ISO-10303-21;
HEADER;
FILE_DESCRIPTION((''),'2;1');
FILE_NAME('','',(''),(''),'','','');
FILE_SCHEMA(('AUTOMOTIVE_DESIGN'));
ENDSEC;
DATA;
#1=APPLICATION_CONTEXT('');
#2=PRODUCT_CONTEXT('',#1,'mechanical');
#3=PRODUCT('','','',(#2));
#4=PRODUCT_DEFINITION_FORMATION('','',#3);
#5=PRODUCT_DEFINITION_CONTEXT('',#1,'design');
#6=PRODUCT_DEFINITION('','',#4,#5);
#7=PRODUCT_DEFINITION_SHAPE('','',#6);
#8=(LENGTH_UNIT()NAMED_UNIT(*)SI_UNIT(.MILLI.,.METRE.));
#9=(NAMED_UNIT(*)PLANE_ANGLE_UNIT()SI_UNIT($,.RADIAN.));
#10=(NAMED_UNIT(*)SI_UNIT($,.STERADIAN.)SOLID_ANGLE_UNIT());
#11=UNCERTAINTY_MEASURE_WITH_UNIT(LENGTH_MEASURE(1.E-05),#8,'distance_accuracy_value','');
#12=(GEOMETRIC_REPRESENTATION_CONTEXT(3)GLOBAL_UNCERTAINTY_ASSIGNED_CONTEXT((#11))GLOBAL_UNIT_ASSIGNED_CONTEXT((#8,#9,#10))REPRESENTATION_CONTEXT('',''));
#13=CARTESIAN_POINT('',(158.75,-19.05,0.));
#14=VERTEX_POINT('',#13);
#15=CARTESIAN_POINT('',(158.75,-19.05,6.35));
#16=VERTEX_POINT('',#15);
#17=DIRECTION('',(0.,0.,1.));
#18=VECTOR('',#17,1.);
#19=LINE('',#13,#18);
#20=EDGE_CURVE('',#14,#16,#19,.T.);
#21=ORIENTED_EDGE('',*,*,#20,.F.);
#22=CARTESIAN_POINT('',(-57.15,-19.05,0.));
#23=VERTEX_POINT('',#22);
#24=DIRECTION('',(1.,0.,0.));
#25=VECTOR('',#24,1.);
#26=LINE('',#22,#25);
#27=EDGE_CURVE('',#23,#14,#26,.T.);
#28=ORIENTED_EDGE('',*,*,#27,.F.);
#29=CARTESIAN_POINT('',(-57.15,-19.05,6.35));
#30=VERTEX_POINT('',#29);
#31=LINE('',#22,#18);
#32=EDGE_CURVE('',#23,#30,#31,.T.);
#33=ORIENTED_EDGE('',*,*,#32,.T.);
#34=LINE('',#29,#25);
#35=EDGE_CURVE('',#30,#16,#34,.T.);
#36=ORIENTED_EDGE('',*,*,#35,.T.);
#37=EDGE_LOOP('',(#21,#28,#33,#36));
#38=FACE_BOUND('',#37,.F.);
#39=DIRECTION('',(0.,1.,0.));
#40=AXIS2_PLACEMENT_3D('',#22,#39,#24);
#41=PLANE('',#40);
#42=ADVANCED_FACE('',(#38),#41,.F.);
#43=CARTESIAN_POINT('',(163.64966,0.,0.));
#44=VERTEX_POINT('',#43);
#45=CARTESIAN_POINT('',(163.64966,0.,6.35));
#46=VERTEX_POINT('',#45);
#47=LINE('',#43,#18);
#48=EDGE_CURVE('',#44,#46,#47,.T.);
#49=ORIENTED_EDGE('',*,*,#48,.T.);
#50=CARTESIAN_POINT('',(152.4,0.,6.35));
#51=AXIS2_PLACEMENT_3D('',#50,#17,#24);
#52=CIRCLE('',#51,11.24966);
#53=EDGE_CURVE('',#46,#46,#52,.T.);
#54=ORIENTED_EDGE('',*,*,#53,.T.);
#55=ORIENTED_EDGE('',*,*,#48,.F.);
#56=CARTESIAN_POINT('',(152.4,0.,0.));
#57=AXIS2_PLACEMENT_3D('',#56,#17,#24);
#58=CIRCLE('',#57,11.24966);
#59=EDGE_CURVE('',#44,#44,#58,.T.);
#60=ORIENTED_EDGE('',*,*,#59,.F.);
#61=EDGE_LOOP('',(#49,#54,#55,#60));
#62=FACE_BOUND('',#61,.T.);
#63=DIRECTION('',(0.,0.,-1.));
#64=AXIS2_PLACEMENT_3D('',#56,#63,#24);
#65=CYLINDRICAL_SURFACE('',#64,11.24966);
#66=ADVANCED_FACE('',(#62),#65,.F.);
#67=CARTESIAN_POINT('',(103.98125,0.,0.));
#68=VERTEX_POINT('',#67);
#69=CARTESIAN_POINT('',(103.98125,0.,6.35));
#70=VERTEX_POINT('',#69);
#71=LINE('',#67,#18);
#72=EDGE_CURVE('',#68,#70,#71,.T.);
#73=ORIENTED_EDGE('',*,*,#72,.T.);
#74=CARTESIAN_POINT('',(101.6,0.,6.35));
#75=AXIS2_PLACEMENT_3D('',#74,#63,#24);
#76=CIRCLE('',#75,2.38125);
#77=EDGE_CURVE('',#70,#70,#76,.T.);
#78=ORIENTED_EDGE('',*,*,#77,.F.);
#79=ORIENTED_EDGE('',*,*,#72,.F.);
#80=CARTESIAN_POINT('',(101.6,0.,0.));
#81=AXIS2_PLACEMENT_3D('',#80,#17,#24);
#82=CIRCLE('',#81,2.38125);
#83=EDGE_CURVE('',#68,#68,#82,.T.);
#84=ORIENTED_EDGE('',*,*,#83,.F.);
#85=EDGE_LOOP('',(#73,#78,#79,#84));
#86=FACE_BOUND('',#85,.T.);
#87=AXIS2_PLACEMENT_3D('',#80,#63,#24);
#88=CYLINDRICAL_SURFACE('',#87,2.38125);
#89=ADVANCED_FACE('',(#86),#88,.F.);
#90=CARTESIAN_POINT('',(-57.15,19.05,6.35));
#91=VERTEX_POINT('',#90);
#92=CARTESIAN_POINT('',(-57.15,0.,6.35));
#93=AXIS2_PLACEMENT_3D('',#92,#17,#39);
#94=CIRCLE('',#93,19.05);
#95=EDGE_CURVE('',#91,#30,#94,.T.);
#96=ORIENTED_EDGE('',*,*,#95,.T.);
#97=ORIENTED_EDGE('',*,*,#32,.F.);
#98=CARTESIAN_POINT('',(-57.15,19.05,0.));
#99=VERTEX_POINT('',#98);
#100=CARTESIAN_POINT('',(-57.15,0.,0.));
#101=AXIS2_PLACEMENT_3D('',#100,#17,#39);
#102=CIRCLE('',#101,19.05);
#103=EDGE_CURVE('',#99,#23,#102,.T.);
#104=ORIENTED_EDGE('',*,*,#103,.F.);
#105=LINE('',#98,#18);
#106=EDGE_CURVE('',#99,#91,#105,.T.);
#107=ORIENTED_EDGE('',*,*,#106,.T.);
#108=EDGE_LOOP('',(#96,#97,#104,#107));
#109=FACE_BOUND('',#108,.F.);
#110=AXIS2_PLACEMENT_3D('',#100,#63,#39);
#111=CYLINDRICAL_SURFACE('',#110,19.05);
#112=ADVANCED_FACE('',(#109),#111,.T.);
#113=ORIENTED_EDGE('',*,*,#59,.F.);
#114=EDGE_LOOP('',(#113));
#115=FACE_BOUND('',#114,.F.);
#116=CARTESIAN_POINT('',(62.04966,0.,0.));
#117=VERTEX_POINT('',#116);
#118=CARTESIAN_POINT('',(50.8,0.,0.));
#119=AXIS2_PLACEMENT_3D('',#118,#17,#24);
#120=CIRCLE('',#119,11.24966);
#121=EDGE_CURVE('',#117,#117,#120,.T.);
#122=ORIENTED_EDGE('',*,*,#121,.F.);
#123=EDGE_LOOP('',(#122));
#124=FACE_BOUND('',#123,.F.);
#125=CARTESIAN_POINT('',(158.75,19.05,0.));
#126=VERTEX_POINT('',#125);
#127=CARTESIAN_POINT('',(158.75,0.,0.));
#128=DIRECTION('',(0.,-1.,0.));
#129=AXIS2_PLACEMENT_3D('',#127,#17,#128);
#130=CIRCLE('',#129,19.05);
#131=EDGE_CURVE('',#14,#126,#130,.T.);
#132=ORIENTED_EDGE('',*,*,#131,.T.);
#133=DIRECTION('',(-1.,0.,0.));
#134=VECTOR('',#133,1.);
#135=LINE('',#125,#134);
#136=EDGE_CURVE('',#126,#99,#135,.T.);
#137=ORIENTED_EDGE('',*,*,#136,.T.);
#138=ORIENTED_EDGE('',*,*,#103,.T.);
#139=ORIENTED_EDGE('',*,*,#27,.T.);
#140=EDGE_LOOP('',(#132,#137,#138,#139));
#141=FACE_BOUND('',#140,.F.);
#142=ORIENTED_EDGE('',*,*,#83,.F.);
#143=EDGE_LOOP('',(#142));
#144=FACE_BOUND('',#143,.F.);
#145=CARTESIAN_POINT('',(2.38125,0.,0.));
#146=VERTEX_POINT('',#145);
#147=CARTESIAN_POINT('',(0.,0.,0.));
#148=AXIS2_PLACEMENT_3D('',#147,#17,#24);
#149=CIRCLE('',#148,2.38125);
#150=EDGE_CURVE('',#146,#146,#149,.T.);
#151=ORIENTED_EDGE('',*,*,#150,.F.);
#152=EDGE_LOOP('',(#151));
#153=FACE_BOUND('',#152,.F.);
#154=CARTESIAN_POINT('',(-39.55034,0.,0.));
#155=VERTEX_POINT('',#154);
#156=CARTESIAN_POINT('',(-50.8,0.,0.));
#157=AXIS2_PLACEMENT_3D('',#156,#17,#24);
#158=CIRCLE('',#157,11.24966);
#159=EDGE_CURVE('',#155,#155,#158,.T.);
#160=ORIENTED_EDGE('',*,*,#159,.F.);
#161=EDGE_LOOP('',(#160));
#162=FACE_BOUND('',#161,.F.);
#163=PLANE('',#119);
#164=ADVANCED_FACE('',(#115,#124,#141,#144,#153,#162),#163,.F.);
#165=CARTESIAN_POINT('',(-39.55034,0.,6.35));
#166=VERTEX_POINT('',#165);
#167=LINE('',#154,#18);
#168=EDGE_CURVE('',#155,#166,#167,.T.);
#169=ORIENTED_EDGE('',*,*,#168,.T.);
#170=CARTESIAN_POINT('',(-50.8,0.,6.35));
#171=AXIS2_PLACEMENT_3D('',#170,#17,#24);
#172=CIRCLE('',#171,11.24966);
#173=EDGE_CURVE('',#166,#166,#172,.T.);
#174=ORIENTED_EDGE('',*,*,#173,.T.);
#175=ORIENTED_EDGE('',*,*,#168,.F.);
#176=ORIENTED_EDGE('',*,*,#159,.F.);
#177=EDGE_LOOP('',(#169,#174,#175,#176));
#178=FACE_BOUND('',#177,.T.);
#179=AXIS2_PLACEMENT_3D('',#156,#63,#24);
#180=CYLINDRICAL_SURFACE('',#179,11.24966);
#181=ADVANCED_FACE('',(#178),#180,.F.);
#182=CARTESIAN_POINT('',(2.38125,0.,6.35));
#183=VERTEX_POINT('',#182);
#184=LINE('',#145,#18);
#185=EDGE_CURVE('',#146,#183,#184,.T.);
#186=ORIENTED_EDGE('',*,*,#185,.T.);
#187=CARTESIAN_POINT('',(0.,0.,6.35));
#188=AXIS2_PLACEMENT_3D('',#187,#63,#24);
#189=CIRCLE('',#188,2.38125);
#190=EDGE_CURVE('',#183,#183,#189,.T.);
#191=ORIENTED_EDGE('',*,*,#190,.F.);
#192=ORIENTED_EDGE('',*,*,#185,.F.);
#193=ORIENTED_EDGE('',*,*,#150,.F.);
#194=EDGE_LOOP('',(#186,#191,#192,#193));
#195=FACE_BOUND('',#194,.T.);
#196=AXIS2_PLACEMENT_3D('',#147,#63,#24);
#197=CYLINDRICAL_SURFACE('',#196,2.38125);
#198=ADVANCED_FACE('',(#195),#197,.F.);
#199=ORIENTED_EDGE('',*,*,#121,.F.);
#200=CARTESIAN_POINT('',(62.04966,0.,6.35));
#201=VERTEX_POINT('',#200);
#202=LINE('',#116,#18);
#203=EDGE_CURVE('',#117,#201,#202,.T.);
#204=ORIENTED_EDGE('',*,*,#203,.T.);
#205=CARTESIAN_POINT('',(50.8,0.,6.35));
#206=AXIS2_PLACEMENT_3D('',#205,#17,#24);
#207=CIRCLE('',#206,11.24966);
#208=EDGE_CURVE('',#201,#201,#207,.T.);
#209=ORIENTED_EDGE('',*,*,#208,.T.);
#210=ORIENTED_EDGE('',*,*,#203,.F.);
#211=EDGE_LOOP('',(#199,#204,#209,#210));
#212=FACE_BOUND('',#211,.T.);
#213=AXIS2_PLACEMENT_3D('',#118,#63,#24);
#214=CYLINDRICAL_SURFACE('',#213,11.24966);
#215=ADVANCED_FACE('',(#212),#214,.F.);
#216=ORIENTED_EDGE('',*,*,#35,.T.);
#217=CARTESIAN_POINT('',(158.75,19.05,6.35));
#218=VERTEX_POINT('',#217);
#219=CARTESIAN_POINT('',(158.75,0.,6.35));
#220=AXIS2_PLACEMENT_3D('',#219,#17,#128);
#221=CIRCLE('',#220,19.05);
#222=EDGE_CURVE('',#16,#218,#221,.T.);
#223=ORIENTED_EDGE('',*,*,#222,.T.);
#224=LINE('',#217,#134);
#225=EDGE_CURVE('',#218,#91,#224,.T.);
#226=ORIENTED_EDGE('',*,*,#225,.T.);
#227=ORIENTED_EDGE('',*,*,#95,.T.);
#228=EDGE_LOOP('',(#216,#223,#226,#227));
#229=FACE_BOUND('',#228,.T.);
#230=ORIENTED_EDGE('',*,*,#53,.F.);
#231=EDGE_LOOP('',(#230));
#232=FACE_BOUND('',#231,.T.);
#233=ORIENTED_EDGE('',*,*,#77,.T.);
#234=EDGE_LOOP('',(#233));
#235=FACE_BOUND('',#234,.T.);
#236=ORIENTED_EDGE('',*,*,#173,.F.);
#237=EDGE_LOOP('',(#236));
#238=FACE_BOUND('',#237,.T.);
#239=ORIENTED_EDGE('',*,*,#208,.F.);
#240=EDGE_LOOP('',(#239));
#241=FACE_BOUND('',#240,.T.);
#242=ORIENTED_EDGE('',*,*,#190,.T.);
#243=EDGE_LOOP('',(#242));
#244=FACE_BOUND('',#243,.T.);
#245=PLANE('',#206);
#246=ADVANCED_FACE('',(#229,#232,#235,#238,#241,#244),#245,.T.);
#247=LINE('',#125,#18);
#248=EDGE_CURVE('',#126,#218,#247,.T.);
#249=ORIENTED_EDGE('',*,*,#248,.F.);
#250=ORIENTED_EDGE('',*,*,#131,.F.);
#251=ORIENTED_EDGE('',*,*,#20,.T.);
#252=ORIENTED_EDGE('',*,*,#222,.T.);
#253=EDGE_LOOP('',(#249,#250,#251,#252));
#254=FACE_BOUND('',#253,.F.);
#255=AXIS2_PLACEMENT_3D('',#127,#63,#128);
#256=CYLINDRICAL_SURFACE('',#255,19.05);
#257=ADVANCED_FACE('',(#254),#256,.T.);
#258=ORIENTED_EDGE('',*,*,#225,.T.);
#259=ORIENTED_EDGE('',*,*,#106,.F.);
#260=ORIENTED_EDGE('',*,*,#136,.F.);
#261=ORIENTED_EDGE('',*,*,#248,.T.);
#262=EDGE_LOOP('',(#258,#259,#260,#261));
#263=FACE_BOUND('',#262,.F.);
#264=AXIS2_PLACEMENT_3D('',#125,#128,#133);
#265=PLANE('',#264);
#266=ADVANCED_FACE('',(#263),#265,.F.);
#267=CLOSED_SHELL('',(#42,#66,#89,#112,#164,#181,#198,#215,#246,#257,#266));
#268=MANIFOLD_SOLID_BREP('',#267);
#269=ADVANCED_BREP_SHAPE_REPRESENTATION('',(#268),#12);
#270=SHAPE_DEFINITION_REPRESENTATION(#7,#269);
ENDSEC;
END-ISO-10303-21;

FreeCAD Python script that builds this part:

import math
import FreeCAD as App
import Part
import Sketcher
from FreeCAD import Vector
Q = App.Units.Quantity

doc = App.newDocument("Part")
body = doc.addObject("PartDesign::Body", "Body")

# Sketch on XY plane
sketch1 = doc.addObject("Sketcher::SketchObject", "Sketch")
body.addObject(sketch1)
sketch1.AttachmentSupport = (doc.XY_Plane, [""])
sketch1.MapMode = "FlatFace"
sketch1.addGeometry(Part.LineSegment(Vector(159, 19, 0), Vector(-57, 19, 0)), False)
sketch1.addGeometry(Part.ArcOfCircle(Part.Circle(Vector(-57, 0, 0), Vector(0, 0, 1), 19), math.radians(90), math.radians(270)), False)
sketch1.addGeometry(Part.LineSegment(Vector(-57, -19, 0), Vector(159, -19, 0)), False)
sketch1.addGeometry(Part.ArcOfCircle(Part.Circle(Vector(159, 0, 0), Vector(0, 0, 1), 19), math.radians(-90), math.radians(90)), False)
sketch1.addGeometry(Part.Circle(Vector(-51, 0, 0), Vector(0, 0, 1), 11), False)
sketch1.addGeometry(Part.Circle(Vector(51, 0, 0), Vector(0, 0, 1), 11), False)
sketch1.addGeometry(Part.Circle(Vector(152, 0, 0), Vector(0, 0, 1), 11), False)
sketch1.addConstraint(Sketcher.Constraint("Tangent", 0, 2, 1, 1))
sketch1.addConstraint(Sketcher.Constraint("Tangent", 1, 2, 2, 1))
sketch1.addConstraint(Sketcher.Constraint("Tangent", 2, 2, 3, 1))
sketch1.addConstraint(Sketcher.Constraint("Tangent", 3, 2, 0, 1))
sketch1.addConstraint(Sketcher.Constraint("Horizontal", 0))
sketch1.addConstraint(Sketcher.Constraint("Horizontal", 2))
sketch1.addConstraint(Sketcher.Constraint("Equal", 4, 5))
sketch1.addConstraint(Sketcher.Constraint("Equal", 5, 6))
sketch1.addConstraint(Sketcher.Constraint("Symmetric", 4, 3, 5, 3, -1, 1))
sketch1.addConstraint(Sketcher.Constraint("PointOnObject", 1, 3, -1))
sketch1.addConstraint(Sketcher.Constraint("PointOnObject", 4, 3, -1))
sketch1.addConstraint(Sketcher.Constraint("PointOnObject", 6, 3, -1))
sketch1.addConstraint(Sketcher.Constraint("Radius", 1, Q("0.75 in")))
sketch1.addConstraint(Sketcher.Constraint("DistanceX", 0, 2, 0, 1, Q("8.5 in")))
sketch1.addConstraint(Sketcher.Constraint("DistanceX", 4, 3, -1, 1, Q("2 in")))
sketch1.addConstraint(Sketcher.Constraint("DistanceX", -1, 1, 6, 3, Q("6 in")))
sketch1.addConstraint(Sketcher.Constraint("Diameter", 4, Q("0.8858 in")))
sketch1.addConstraint(Sketcher.Constraint("DistanceX", 1, 3, -1, 1, Q("2.25 in")))
pad1 = doc.addObject("PartDesign::Pad", "Pad")
body.addObject(pad1)
pad1.Profile = sketch1
pad1.Length = Q("0.25 in")

# Sketch on XY plane
sketch2 = doc.addObject("Sketcher::SketchObject", "Sketch001")
body.addObject(sketch2)
sketch2.AttachmentSupport = (doc.XY_Plane, [""])
sketch2.MapMode = "FlatFace"
sketch2.addGeometry(Part.Circle(Vector(0, 0, 0), Vector(0, 0, 1), 2.4), False)
sketch2.addGeometry(Part.Circle(Vector(101.6, 0, 0), Vector(0, 0, 1), 2.4), False)
sketch2.addConstraint(Sketcher.Constraint("Coincident", 0, 3, -1, 1))
sketch2.addConstraint(Sketcher.Constraint("Equal", 0, 1))
sketch2.addConstraint(Sketcher.Constraint("PointOnObject", 1, 3, -1))
sketch2.addConstraint(Sketcher.Constraint("Diameter", 0, Q("0.1875 in")))
sketch2.addConstraint(Sketcher.Constraint("DistanceX", -1, 1, 1, 3, Q("4 in")))
pocket1 = doc.addObject("PartDesign::Pocket", "Pocket")
body.addObject(pocket1)
pocket1.Profile = sketch2
pocket1.Length = Q("1 in")
pocket1.Reversed = True

doc.recompute()
